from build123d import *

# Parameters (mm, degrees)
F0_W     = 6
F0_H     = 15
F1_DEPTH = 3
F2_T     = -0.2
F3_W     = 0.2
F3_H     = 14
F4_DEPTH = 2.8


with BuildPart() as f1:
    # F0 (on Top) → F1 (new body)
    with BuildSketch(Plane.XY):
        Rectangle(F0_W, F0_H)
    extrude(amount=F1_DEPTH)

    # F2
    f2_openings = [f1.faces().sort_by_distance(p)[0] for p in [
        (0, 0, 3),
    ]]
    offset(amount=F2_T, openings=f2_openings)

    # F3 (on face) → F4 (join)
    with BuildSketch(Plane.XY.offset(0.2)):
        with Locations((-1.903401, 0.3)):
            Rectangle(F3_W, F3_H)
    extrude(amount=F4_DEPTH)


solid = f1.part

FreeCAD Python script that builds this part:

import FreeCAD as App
import Part
import Sketcher
Q = App.Units.Quantity


def faces_at(feature, points):
    """Names of the faces that lie closest to the given points."""
    faces = feature.Shape.Faces
    near = lambda p: min(range(len(faces)), key=lambda i: faces[i].distToShape(Part.Vertex(*p))[0])
    return sorted({f"Face{near(p) + 1}" for p in points})


def add_polygon(sketch, points):
    """Adds a closed chain of lines whose ends are joined by coincident constraints."""
    first, n = sketch.GeometryCount, len(points)
    for a, b in zip(points, points[1:] + points[:1]):
        sketch.addGeometry(Part.LineSegment(App.Vector(*a, 0), App.Vector(*b, 0)), False)
    for i in range(n):
        sketch.addConstraint(Sketcher.Constraint("Coincident", first + i, 2, first + (i + 1) % n, 1))

doc = App.newDocument("Part")
body = doc.addObject("PartDesign::Body", "Body")

sketch1 = body.newObject("Sketcher::SketchObject", "Sketch")
sketch1.AttachmentSupport = (doc.getObject("XY_Plane"), [""])
sketch1.MapMode = "FlatFace"
add_polygon(sketch1, [(-3, 8), (-3, -8), (3, -8), (3, 8)])
sketch1.addConstraint([
    Sketcher.Constraint("Vertical", 0),
    Sketcher.Constraint("Horizontal", 1),
    Sketcher.Constraint("Vertical", 2),
    Sketcher.Constraint("Horizontal", 3),
    Sketcher.Constraint("Symmetric", 0, 2, 2, 2, -1, 1),
    Sketcher.Constraint("DistanceX", 1, 1, 1, 2, Q("6 mm")),
    Sketcher.Constraint("DistanceY", 0, 2, 0, 1, Q("15 mm")),
])
pad1 = body.newObject("PartDesign::Pad", "Pad")
pad1.Profile = sketch1
pad1.Length = 3
doc.recompute()

thickness = body.newObject("PartDesign::Thickness", "Thickness")
thickness.Base = (pad1, faces_at(pad1, [(0, 0, 3)]))
thickness.Value = 0.2
thickness.Reversed = True
thickness.Join = "Arc"

sketch2 = body.newObject("Sketcher::SketchObject", "Sketch001")
sketch2.AttachmentSupport = (doc.getObject("XY_Plane"), [""])
sketch2.MapMode = "FlatFace"
sketch2.AttachmentOffset = App.Placement(App.Vector(0, 0, 0.2), App.Rotation())
add_polygon(sketch2, [(-2, 7.3), (-2, -6.7), (-1.8, -6.7), (-1.8, 7.3)])
sketch2.addConstraint([
    Sketcher.Constraint("Vertical", 0),
    Sketcher.Constraint("Horizontal", 1),
    Sketcher.Constraint("Vertical", 2),
    Sketcher.Constraint("Horizontal", 3),
    Sketcher.Constraint("DistanceY", 0, 2, 0, 1, Q("14 mm")),
    Sketcher.Constraint("DistanceX", 1, 1, 1, 2, Q("0.2 mm")),
    Sketcher.Constraint("DistanceY", 0, 2, -1, 1, Q("6.7 mm")),
    Sketcher.Constraint("DistanceX", 0, 2, -1, 1, Q("2.003401 mm")),
])
pad2 = body.newObject("PartDesign::Pad", "Pad001")
pad2.Profile = sketch2
pad2.Length = 2.8

doc.recompute()
